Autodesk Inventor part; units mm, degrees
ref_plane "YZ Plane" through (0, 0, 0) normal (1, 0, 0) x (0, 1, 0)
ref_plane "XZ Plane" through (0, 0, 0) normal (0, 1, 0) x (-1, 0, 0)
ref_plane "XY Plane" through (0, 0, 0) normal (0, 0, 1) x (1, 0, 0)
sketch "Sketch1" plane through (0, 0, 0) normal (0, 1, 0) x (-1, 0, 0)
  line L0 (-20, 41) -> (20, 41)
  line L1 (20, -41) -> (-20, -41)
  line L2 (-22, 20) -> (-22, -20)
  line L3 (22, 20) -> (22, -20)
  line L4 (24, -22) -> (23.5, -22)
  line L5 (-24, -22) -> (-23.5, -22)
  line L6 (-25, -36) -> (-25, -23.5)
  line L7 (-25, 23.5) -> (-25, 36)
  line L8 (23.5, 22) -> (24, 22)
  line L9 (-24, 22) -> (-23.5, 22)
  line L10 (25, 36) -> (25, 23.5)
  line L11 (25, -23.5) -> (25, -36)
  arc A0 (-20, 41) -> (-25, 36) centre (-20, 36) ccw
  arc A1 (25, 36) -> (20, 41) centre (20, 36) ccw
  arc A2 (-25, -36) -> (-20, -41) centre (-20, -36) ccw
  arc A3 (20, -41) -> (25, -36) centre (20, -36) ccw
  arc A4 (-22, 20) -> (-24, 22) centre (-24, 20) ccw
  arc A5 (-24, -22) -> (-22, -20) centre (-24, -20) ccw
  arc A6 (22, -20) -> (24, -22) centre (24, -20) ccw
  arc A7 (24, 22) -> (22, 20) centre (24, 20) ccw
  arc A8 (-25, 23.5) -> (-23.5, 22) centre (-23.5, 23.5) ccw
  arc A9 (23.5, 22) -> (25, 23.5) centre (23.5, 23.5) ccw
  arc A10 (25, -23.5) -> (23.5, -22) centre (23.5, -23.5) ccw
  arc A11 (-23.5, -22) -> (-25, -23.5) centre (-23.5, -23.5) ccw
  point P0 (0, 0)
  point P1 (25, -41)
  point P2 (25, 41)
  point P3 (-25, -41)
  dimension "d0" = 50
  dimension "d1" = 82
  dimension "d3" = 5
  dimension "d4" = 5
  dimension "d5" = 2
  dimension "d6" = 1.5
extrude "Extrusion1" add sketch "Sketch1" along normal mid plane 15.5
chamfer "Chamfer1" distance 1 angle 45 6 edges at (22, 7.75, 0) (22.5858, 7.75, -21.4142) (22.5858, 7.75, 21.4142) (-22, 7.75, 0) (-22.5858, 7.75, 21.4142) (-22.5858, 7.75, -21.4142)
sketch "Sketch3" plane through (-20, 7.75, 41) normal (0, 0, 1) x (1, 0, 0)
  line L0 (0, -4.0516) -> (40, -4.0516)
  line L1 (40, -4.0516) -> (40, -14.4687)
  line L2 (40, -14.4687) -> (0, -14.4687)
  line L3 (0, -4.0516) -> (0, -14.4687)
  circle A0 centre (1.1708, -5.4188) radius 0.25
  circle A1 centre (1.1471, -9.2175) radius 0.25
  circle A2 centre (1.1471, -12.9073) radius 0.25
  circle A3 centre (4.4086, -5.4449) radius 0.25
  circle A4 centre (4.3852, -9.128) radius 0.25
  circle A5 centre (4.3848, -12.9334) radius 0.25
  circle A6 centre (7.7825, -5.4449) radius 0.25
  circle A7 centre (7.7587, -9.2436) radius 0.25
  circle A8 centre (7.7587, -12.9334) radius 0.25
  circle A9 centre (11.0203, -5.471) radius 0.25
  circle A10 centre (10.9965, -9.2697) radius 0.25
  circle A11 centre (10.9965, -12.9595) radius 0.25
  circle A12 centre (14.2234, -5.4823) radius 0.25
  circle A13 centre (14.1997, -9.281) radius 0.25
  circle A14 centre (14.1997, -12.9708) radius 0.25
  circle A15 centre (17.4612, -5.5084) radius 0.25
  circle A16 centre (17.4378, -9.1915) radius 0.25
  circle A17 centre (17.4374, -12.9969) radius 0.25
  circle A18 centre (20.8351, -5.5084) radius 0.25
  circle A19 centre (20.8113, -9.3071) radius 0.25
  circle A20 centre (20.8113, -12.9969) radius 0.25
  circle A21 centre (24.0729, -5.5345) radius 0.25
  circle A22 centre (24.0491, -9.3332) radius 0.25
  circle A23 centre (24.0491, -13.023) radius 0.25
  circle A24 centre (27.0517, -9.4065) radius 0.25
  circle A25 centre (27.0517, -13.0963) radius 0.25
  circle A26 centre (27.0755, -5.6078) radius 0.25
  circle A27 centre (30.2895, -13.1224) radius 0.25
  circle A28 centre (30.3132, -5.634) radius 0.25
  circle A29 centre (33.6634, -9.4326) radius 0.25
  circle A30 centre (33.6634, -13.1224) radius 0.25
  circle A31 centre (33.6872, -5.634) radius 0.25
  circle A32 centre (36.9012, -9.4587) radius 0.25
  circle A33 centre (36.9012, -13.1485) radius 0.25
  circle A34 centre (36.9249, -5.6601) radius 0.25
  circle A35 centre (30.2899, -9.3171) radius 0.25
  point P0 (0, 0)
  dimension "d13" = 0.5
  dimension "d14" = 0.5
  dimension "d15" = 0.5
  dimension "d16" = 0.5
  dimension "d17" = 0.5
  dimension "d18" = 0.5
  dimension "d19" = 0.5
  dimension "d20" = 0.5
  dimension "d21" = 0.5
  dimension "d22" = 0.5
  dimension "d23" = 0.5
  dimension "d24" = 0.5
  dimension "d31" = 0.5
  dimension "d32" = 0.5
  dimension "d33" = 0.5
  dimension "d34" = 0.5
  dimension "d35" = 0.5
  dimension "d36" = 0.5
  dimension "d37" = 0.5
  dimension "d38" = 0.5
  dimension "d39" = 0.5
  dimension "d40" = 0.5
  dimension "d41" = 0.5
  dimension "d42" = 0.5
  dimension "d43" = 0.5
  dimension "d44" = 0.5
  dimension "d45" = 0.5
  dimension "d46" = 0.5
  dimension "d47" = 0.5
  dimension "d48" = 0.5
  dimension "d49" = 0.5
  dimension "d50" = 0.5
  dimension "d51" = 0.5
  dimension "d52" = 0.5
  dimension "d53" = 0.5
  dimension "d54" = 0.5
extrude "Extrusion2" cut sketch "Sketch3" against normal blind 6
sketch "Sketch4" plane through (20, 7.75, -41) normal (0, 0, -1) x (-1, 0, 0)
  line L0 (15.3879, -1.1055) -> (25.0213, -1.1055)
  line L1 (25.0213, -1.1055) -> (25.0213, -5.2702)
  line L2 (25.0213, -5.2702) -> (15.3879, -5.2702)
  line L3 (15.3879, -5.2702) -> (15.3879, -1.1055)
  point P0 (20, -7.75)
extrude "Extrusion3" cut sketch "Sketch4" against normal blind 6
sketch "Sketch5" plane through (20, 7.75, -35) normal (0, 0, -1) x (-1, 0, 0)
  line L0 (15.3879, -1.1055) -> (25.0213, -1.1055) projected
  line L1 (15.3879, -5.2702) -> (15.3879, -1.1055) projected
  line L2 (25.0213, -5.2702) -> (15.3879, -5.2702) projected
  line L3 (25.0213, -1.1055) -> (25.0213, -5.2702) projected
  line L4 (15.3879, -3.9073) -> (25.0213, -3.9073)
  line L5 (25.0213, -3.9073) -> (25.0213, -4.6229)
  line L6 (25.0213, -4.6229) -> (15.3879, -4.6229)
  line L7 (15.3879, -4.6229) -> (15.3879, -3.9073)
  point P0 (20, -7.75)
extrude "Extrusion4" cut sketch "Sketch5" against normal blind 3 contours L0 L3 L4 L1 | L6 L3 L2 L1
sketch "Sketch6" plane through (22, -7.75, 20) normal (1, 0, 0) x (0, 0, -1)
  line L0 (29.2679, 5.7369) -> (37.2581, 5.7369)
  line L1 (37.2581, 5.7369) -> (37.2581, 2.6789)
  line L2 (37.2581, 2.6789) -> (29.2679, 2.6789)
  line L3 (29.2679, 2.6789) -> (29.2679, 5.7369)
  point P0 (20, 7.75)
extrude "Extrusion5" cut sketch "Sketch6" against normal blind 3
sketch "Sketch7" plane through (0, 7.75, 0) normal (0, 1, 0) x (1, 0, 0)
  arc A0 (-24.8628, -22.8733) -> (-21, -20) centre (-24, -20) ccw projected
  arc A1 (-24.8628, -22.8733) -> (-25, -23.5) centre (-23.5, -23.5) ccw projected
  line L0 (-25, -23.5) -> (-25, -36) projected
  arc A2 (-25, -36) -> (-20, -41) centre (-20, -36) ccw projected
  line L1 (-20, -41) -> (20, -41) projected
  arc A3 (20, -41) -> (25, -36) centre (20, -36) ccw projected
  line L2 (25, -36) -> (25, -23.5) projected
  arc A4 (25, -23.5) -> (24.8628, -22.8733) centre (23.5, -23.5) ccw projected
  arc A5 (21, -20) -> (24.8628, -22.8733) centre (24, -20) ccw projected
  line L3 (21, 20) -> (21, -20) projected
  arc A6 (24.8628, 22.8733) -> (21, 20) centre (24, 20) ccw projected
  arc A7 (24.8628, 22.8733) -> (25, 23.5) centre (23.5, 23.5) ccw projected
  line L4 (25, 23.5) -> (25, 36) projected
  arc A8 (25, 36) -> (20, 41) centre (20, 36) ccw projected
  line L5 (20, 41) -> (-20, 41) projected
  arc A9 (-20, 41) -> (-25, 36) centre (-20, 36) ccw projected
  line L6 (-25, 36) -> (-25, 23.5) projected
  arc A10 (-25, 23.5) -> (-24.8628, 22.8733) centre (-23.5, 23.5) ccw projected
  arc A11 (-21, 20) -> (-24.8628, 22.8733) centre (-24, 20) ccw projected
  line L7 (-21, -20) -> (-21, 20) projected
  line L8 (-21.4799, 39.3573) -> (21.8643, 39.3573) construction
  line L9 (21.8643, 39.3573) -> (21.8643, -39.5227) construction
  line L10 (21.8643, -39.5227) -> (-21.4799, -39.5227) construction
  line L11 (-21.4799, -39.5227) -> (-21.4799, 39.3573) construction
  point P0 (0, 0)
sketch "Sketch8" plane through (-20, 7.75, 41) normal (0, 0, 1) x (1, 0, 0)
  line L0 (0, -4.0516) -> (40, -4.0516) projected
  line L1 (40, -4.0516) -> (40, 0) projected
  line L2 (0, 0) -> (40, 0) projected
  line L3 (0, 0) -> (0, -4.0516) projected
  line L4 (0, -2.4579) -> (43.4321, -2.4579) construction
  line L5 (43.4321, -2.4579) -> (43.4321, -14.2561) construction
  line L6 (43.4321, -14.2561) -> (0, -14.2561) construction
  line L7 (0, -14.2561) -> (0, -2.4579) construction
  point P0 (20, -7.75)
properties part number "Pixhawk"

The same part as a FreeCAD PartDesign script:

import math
import FreeCAD as App
import Part
import Sketcher


def edges_at(feature, points):
    """Names of the edges that pass closest to the given points."""
    edges = feature.Shape.Edges
    near = lambda p: min(range(len(edges)), key=lambda i: edges[i].distToShape(Part.Vertex(*p))[0])
    return sorted({f"Edge{near(p) + 1}" for p in points})

doc = App.newDocument("Part")
body = doc.addObject("PartDesign::Body", "Body")

sketch1 = body.newObject("Sketcher::SketchObject", "Sketch")
sketch1.AttachmentSupport = (doc.getObject("XZ_Plane"), [""])
sketch1.MapMode = "FlatFace"
sketch1.addGeometry([
    Part.LineSegment(App.Vector(-20, 41, 0), App.Vector(20, 41, 0)),
    Part.ArcOfCircle(Part.Circle(App.Vector(20, 36, 0), App.Vector(0, 0, 1), 5), math.radians(0), math.radians(90)),
    Part.LineSegment(App.Vector(25, 36, 0), App.Vector(25, 23.5, 0)),
    Part.ArcOfCircle(Part.Circle(App.Vector(23.5, 23.5, 0), App.Vector(0, 0, 1), 1.5), math.radians(-90), math.radians(0)),
    Part.LineSegment(App.Vector(23.5, 22, 0), App.Vector(24, 22, 0)),
    Part.ArcOfCircle(Part.Circle(App.Vector(24, 20, 0), App.Vector(0, 0, 1), 2), math.radians(90), math.radians(180)),
    Part.LineSegment(App.Vector(22, 20, 0), App.Vector(22, -20, 0)),
    Part.ArcOfCircle(Part.Circle(App.Vector(24, -20, 0), App.Vector(0, 0, 1), 2), math.radians(180), math.radians(270)),
    Part.LineSegment(App.Vector(24, -22, 0), App.Vector(23.5, -22, 0)),
    Part.ArcOfCircle(Part.Circle(App.Vector(23.5, -23.5, 0), App.Vector(0, 0, 1), 1.5), math.radians(0), math.radians(90)),
    Part.LineSegment(App.Vector(25, -23.5, 0), App.Vector(25, -36, 0)),
    Part.ArcOfCircle(Part.Circle(App.Vector(20, -36, 0), App.Vector(0, 0, 1), 5), math.radians(-90), math.radians(0)),
    Part.LineSegment(App.Vector(20, -41, 0), App.Vector(-20, -41, 0)),
    Part.ArcOfCircle(Part.Circle(App.Vector(-20, -36, 0), App.Vector(0, 0, 1), 5), math.radians(180), math.radians(270)),
    Part.LineSegment(App.Vector(-25, -36, 0), App.Vector(-25, -23.5, 0)),
    Part.ArcOfCircle(Part.Circle(App.Vector(-23.5, -23.5, 0), App.Vector(0, 0, 1), 1.5), math.radians(90), math.radians(180)),
    Part.LineSegment(App.Vector(-23.5, -22, 0), App.Vector(-24, -22, 0)),
    Part.ArcOfCircle(Part.Circle(App.Vector(-24, -20, 0), App.Vector(0, 0, 1), 2), math.radians(-90), math.radians(0)),
    Part.LineSegment(App.Vector(-22, -20, 0), App.Vector(-22, 20, 0)),
    Part.ArcOfCircle(Part.Circle(App.Vector(-24, 20, 0), App.Vector(0, 0, 1), 2), math.radians(0), math.radians(90)),
    Part.LineSegment(App.Vector(-24, 22, 0), App.Vector(-23.5, 22, 0)),
    Part.ArcOfCircle(Part.Circle(App.Vector(-23.5, 23.5, 0), App.Vector(0, 0, 1), 1.5), math.radians(180), math.radians(270)),
    Part.LineSegment(App.Vector(-25, 23.5, 0), App.Vector(-25, 36, 0)),
    Part.ArcOfCircle(Part.Circle(App.Vector(-20, 36, 0), App.Vector(0, 0, 1), 5), math.radians(90), math.radians(180)),
], False)
sketch1.addConstraint([
    Sketcher.Constraint("Tangent", 0, 2, 1, 2),
    Sketcher.Constraint("Tangent", 1, 1, 2, 1),
    Sketcher.Constraint("Tangent", 2, 2, 3, 2),
    Sketcher.Constraint("Tangent", 3, 1, 4, 1),
    Sketcher.Constraint("Tangent", 4, 2, 5, 1),
    Sketcher.Constraint("Tangent", 5, 2, 6, 1),
    Sketcher.Constraint("Tangent", 6, 2, 7, 1),
    Sketcher.Constraint("Tangent", 7, 2, 8, 1),
    Sketcher.Constraint("Tangent", 8, 2, 9, 2),
    Sketcher.Constraint("Tangent", 9, 1, 10, 1),
    Sketcher.Constraint("Tangent", 10, 2, 11, 2),
    Sketcher.Constraint("Tangent", 11, 1, 12, 1),
    Sketcher.Constraint("Tangent", 12, 2, 13, 2),
    Sketcher.Constraint("Tangent", 13, 1, 14, 1),
    Sketcher.Constraint("Tangent", 14, 2, 15, 2),
    Sketcher.Constraint("Tangent", 15, 1, 16, 1),
    Sketcher.Constraint("Tangent", 16, 2, 17, 1),
    Sketcher.Constraint("Tangent", 17, 2, 18, 1),
    Sketcher.Constraint("Tangent", 18, 2, 19, 1),
    Sketcher.Constraint("Tangent", 19, 2, 20, 1),
    Sketcher.Constraint("Tangent", 20, 2, 21, 2),
    Sketcher.Constraint("Tangent", 21, 1, 22, 1),
    Sketcher.Constraint("Tangent", 22, 2, 23, 2),
    Sketcher.Constraint("Tangent", 23, 1, 0, 1),
    Sketcher.Constraint("Horizontal", 0),
    Sketcher.Constraint("Vertical", 2),
    Sketcher.Constraint("Horizontal", 4),
    Sketcher.Constraint("Vertical", 6),
    Sketcher.Constraint("Horizontal", 8),
    Sketcher.Constraint("Vertical", 10),
    Sketcher.Constraint("Horizontal", 12),
    Sketcher.Constraint("Vertical", 14),
    Sketcher.Constraint("Horizontal", 16),
    Sketcher.Constraint("Vertical", 18),
    Sketcher.Constraint("Horizontal", 20),
    Sketcher.Constraint("Vertical", 22),
    Sketcher.Constraint("Equal", 5, 7),
    Sketcher.Constraint("Equal", 3, 9),
    Sketcher.Constraint("Equal", 1, 11),
    Sketcher.Constraint("Equal", 11, 13),
    Sketcher.Constraint("Equal", 9, 15),
    Sketcher.Constraint("Equal", 7, 17),
    Sketcher.Constraint("Equal", 17, 19),
    Sketcher.Constraint("Equal", 15, 21),
    Sketcher.Constraint("Equal", 13, 23),
    Sketcher.Constraint("Symmetric", 1, 3, 13, 3, -1, 1),
    Sketcher.Constraint("Symmetric", 5, 3, 17, 3, -1, 1),
    Sketcher.Constraint("Symmetric", 9, 3, 21, 3, -1, 1),
    Sketcher.Constraint("Symmetric", 9, 3, 15, 3, -2),
    Sketcher.Constraint("Equal", 12, 6),
    Sketcher.Constraint("Radius", 1, 5.0),
    Sketcher.Constraint("Radius", 5, 2.0),
    Sketcher.Constraint("Radius", 3, 1.5),
    Sketcher.Constraint("DistanceX", 11, 3, 6, 2, 2.0),
    Sketcher.Constraint("DistanceX", 0, 1, 0, 2, 40.0),
    Sketcher.Constraint("DistanceY", 2, 2, 2, 1, 12.5),
])
pad1 = body.newObject("PartDesign::Pad", "Pad")
pad1.Profile = sketch1
pad1.Length = 15.5
pad1.Midplane = True
doc.recompute()

chamfer = body.newObject("PartDesign::Chamfer", "Chamfer")
chamfer.Base = (pad1, edges_at(pad1, [
    (22, 7.75, 0),
    (22.586, 7.75, -21.414),
    (22.586, 7.75, 21.414),
    (-22, 7.75, 0),
    (-22.586, 7.75, 21.414),
    (-22.586, 7.75, -21.414),
]))
chamfer.Size = 1

sketch2 = body.newObject("Sketcher::SketchObject", "Sketch001")
sketch2.AttachmentSupport = (doc.getObject("XY_Plane"), [""])
sketch2.MapMode = "FlatFace"
sketch2.AttachmentOffset = App.Placement(App.Vector(0, 0, 41), App.Rotation())
sketch2.addGeometry([
    Part.LineSegment(App.Vector(20, 3.7, 0), App.Vector(-20, 3.7, 0)),
    Part.LineSegment(App.Vector(-20, 3.7, 0), App.Vector(-20, -6.72, 0)),
    Part.LineSegment(App.Vector(-20, -6.72, 0), App.Vector(20, -6.72, 0)),
    Part.LineSegment(App.Vector(20, -6.72, 0), App.Vector(20, 3.7, 0)),
    Part.Circle(App.Vector(-18.85, -5.16, 0), App.Vector(0, 0, 1), 0.25),
    Part.Circle(App.Vector(-15.62, -5.18, 0), App.Vector(0, 0, 1), 0.25),
    Part.Circle(App.Vector(-12.24, -5.18, 0), App.Vector(0, 0, 1), 0.25),
    Part.Circle(App.Vector(-9, -5.21, 0), App.Vector(0, 0, 1), 0.25),
    Part.Circle(App.Vector(-5.8, -5.22, 0), App.Vector(0, 0, 1), 0.25),
    Part.Circle(App.Vector(-2.56, -5.25, 0), App.Vector(0, 0, 1), 0.25),
    Part.Circle(App.Vector(-9, -1.52, 0), App.Vector(0, 0, 1), 0.25),
    Part.Circle(App.Vector(-5.8, -1.53, 0), App.Vector(0, 0, 1), 0.25),
    Part.Circle(App.Vector(0.81, -5.25, 0), App.Vector(0, 0, 1), 0.25),
    Part.Circle(App.Vector(4.05, -5.27, 0), App.Vector(0, 0, 1), 0.25),
    Part.Circle(App.Vector(7.05, -5.35, 0), App.Vector(0, 0, 1), 0.25),
    Part.Circle(App.Vector(10.29, -5.37, 0), App.Vector(0, 0, 1), 0.25),
    Part.Circle(App.Vector(13.66, -5.37, 0), App.Vector(0, 0, 1), 0.25),
    Part.Circle(App.Vector(16.9, -5.4, 0), App.Vector(0, 0, 1), 0.25),
    Part.Circle(App.Vector(0.81, -1.56, 0), App.Vector(0, 0, 1), 0.25),
    Part.Circle(App.Vector(4.05, -1.58, 0), App.Vector(0, 0, 1), 0.25),
    Part.Circle(App.Vector(7.05, -1.66, 0), App.Vector(0, 0, 1), 0.25),
    Part.Circle(App.Vector(10.29, -1.57, 0), App.Vector(0, 0, 1), 0.25),
    Part.Circle(App.Vector(13.66, -1.68, 0), App.Vector(0, 0, 1), 0.25),
    Part.Circle(App.Vector(16.9, -1.71, 0), App.Vector(0, 0, 1), 0.25),
    Part.Circle(App.Vector(-18.85, -1.47, 0), App.Vector(0, 0, 1), 0.25),
    Part.Circle(App.Vector(-15.61, -1.38, 0), App.Vector(0, 0, 1), 0.25),
    Part.Circle(App.Vector(-12.24, -1.49, 0), App.Vector(0, 0, 1), 0.25),
    Part.Circle(App.Vector(-2.56, -1.44, 0), App.Vector(0, 0, 1), 0.25),
    Part.Circle(App.Vector(-18.83, 2.33, 0), App.Vector(0, 0, 1), 0.25),
    Part.Circle(App.Vector(-15.59, 2.31, 0), App.Vector(0, 0, 1), 0.25),
    Part.Circle(App.Vector(-12.22, 2.31, 0), App.Vector(0, 0, 1), 0.25),
    Part.Circle(App.Vector(-8.98, 2.28, 0), App.Vector(0, 0, 1), 0.25),
    Part.Circle(App.Vector(-5.78, 2.27, 0), App.Vector(0, 0, 1), 0.25),
    Part.Circle(App.Vector(-2.54, 2.24, 0), App.Vector(0, 0, 1), 0.25),
    Part.Circle(App.Vector(0.84, 2.24, 0), App.Vector(0, 0, 1), 0.25),
    Part.Circle(App.Vector(4.07, 2.22, 0), App.Vector(0, 0, 1), 0.25),
    Part.Circle(App.Vector(7.08, 2.14, 0), App.Vector(0, 0, 1), 0.25),
    Part.Circle(App.Vector(10.31, 2.12, 0), App.Vector(0, 0, 1), 0.25),
    Part.Circle(App.Vector(13.69, 2.12, 0), App.Vector(0, 0, 1), 0.25),
    Part.Circle(App.Vector(16.92, 2.09, 0), App.Vector(0, 0, 1), 0.25),
], False)
sketch2.addConstraint([
    Sketcher.Constraint("Coincident", 0, 2, 1, 1),
    Sketcher.Constraint("Coincident", 1, 2, 2, 1),
    Sketcher.Constraint("Coincident", 2, 2, 3, 1),
    Sketcher.Constraint("Coincident", 3, 2, 0, 1),
    Sketcher.Constraint("Horizontal", 0),
    Sketcher.Constraint("Vertical", 1),
    Sketcher.Constraint("Horizontal", 2),
    Sketcher.Constraint("Vertical", 3),
    Sketcher.Constraint("Equal", 4, 5),
    Sketcher.Constraint("Equal", 5, 6),
    Sketcher.Constraint("Equal", 6, 7),
    Sketcher.Constraint("Equal", 7, 8),
    Sketcher.Constraint("Equal", 8, 9),
    Sketcher.Constraint("Equal", 9, 10),
    Sketcher.Constraint("Equal", 10, 11),
    Sketcher.Constraint("Equal", 11, 12),
    Sketcher.Constraint("Equal", 12, 13),
    Sketcher.Constraint("Equal", 13, 14),
    Sketcher.Constraint("Equal", 14, 15),
    Sketcher.Constraint("Equal", 15, 16),
    Sketcher.Constraint("Equal", 16, 17),
    Sketcher.Constraint("Equal", 17, 18),
    Sketcher.Constraint("Equal", 18, 19),
    Sketcher.Constraint("Equal", 19, 20),
    Sketcher.Constraint("Equal", 20, 21),
    Sketcher.Constraint("Equal", 21, 22),
    Sketcher.Constraint("Equal", 22, 23),
    Sketcher.Constraint("Equal", 23, 24),
    Sketcher.Constraint("Equal", 24, 25),
    Sketcher.Constraint("Equal", 25, 26),
    Sketcher.Constraint("Equal", 26, 27),
    Sketcher.Constraint("Equal", 27, 28),
    Sketcher.Constraint("Equal", 28, 29),
    Sketcher.Constraint("Equal", 29, 30),
    Sketcher.Constraint("Equal", 30, 31),
    Sketcher.Constraint("Equal", 31, 32),
    Sketcher.Constraint("Equal", 32, 33),
    Sketcher.Constraint("Equal", 33, 34),
    Sketcher.Constraint("Equal", 34, 35),
    Sketcher.Constraint("Equal", 35, 36),
    Sketcher.Constraint("Equal", 36, 37),
    Sketcher.Constraint("Equal", 37, 38),
    Sketcher.Constraint("Equal", 38, 39),
    Sketcher.Constraint("Horizontal", 5, 3, 6, 3),
    Sketcher.Constraint("Horizontal", 9, 3, 12, 3),
    Sketcher.Constraint("Horizontal", 15, 3, 16, 3),
    Sketcher.Constraint("Horizontal", 29, 3, 30, 3),
    Sketcher.Constraint("Horizontal", 33, 3, 34, 3),
    Sketcher.Constraint("Horizontal", 37, 3, 38, 3),
    Sketcher.Constraint("Vertical", 7, 3, 10, 3),
    Sketcher.Constraint("Vertical", 8, 3, 11, 3),
    Sketcher.Constraint("Vertical", 12, 3, 18, 3),
    Sketcher.Constraint("Vertical", 13, 3, 19, 3),
    Sketcher.Constraint("Vertical", 14, 3, 20, 3),
    Sketcher.Constraint("Vertical", 16, 3, 22, 3),
    Sketcher.Constraint("Vertical", 17, 3, 23, 3),
    Sketcher.Constraint("Vertical", 4, 3, 24, 3),
    Sketcher.Constraint("Vertical", 6, 3, 26, 3),
    Sketcher.Constraint("Diameter", 4, 0.5),
    Sketcher.Constraint("DistanceX", 0, 2, 0, 1, 40.0),
    Sketcher.Constraint("DistanceX", 0, 2, -1, 1, 20.0),
    Sketcher.Constraint("DistanceY", 1, 2, 1, 1, 10.417),
    Sketcher.Constraint("DistanceX", -1, 1, 21, 3, 10.29),
    Sketcher.Constraint("DistanceY", -1, 1, 39, 3, 2.09),
    Sketcher.Constraint("DistanceX", 12, 3, 17, 3, 16.09),
    Sketcher.Constraint("DistanceX", 29, 3, 26, 3, 3.35),
    Sketcher.Constraint("DistanceY", 11, 3, 31, 3, 3.81),
    Sketcher.Constraint("DistanceX", 33, 3, 18, 3, 3.35),
    Sketcher.Constraint("DistanceY", 2, 2, 23, 3, 5.01),
    Sketcher.Constraint("DistanceX", 4, 3, -1, 1, 18.853),
    Sketcher.Constraint("DistanceY", 9, 3, -1, 1, 5.247),
    Sketcher.Constraint("DistanceY", 11, 3, -1, 1, 1.531),
    Sketcher.Constraint("DistanceX", -1, 1, 13, 3, 4.049),
    Sketcher.Constraint("DistanceY", 13, 3, -1, 1, 5.273),
    Sketcher.Constraint("DistanceY", 18, 3, -1, 1, 1.557),
    Sketcher.Constraint("DistanceY", 21, 3, -1, 1, 1.567),
    Sketcher.Constraint("DistanceY", 25, 3, -1, 1, 1.378),
    Sketcher.Constraint("DistanceY", -1, 1, 29, 3, 2.305),
    Sketcher.Constraint("DistanceX", -1, 1, 34, 3, 0.835),
    Sketcher.Constraint("DistanceX", -1, 1, 35, 3, 4.073),
    Sketcher.Constraint("DistanceY", -1, 1, 37, 3, 2.116),
    Sketcher.Constraint("DistanceX", -1, 1, 39, 3, 16.925),
    Sketcher.Constraint("DistanceY", 5, 3, 4, 3, 0.026),
    Sketcher.Constraint("DistanceX", 5, 3, 6, 3, 3.374),
    Sketcher.Constraint("DistanceY", 7, 3, 6, 3, 0.026),
    Sketcher.Constraint("DistanceX", 6, 3, 8, 3, 6.441),
    Sketcher.Constraint("DistanceY", 9, 3, 8, 3, 0.026),
    Sketcher.Constraint("DistanceX", 7, 3, 9, 3, 6.441),
    Sketcher.Constraint("DistanceY", 8, 3, 10, 3, 3.701),
    Sketcher.Constraint("DistanceX", 9, 3, 12, 3, 3.374),
    Sketcher.Constraint("DistanceX", 8, 3, 14, 3, 12.852),
    Sketcher.Constraint("DistanceY", 15, 3, 14, 3, 0.026),
    Sketcher.Constraint("DistanceX", 9, 3, 15, 3, 12.852),
    Sketcher.Constraint("DistanceX", 15, 3, 16, 3, 3.374),
    Sketcher.Constraint("DistanceY", 17, 3, 16, 3, 0.026),
    Sketcher.Constraint("DistanceX", 13, 3, 17, 3, 12.852),
    Sketcher.Constraint("DistanceY", 19, 3, 18, 3, 0.026),
    Sketcher.Constraint("DistanceY", 14, 3, 19, 3, 3.763),
    Sketcher.Constraint("DistanceY", 15, 3, 20, 3, 3.716),
    Sketcher.Constraint("DistanceY", 17, 3, 22, 3, 3.716),
    Sketcher.Constraint("DistanceY", 23, 3, 22, 3, 0.026),
    Sketcher.Constraint("DistanceY", 5, 3, 24, 3, 3.716),
    Sketcher.Constraint("DistanceX", 24, 3, 25, 3, 3.238),
    Sketcher.Constraint("DistanceY", 10, 3, 26, 3, 0.026),
    Sketcher.Constraint("DistanceY", 7, 3, 26, 3, 3.716),
    Sketcher.Constraint("DistanceX", 11, 3, 27, 3, 3.238),
    Sketcher.Constraint("DistanceX", 28, 3, 26, 3, 6.588),
    Sketcher.Constraint("DistanceY", 29, 3, 28, 3, 0.026),
    Sketcher.Constraint("DistanceX", 29, 3, 30, 3, 3.374),
    Sketcher.Constraint("DistanceX", 30, 3, 10, 3, 3.214),
    Sketcher.Constraint("DistanceX", 31, 3, 32, 3, 3.203),
    Sketcher.Constraint("DistanceX", 10, 3, 32, 3, 3.227),
    Sketcher.Constraint("DistanceY", 33, 3, 32, 3, 0.026),
    Sketcher.Constraint("DistanceY", 27, 3, 33, 3, 3.683),
    Sketcher.Constraint("DistanceY", 35, 3, 34, 3, 0.026),
    Sketcher.Constraint("DistanceY", 20, 3, 35, 3, 3.872),
    Sketcher.Constraint("DistanceX", 37, 3, 38, 3, 3.374),
    Sketcher.Constraint("DistanceX", 38, 3, 23, 3, 3.214),
    Sketcher.Constraint("DistanceX", -1, 1, 36, 3, 7.0755),
    Sketcher.Constraint("DistanceY", -1, 1, 36, 3, 2.1422),
])
pocket1 = body.newObject("PartDesign::Pocket", "Pocket")
pocket1.Profile = sketch2
pocket1.Length = 6

sketch3 = body.newObject("Sketcher::SketchObject", "Sketch002")
sketch3.AttachmentSupport = (doc.getObject("XY_Plane"), [""])
sketch3.MapMode = "FlatFace"
sketch3.AttachmentOffset = App.Placement(App.Vector(0, 0, -41), App.Rotation())
sketch3.addGeometry([
    Part.LineSegment(App.Vector(-5, 6.6, 0), App.Vector(4.6, 6.6, 0)),
    Part.LineSegment(App.Vector(4.6, 6.6, 0), App.Vector(4.6, 2.5, 0)),
    Part.LineSegment(App.Vector(4.6, 2.5, 0), App.Vector(-5, 2.5, 0)),
    Part.LineSegment(App.Vector(-5, 2.5, 0), App.Vector(-5, 6.6, 0)),
], False)
sketch3.addConstraint([
    Sketcher.Constraint("Coincident", 0, 2, 1, 1),
    Sketcher.Constraint("Coincident", 1, 2, 2, 1),
    Sketcher.Constraint("Coincident", 2, 2, 3, 1),
    Sketcher.Constraint("Coincident", 3, 2, 0, 1),
    Sketcher.Constraint("Horizontal", 0),
    Sketcher.Constraint("Vertical", 1),
    Sketcher.Constraint("Horizontal", 2),
    Sketcher.Constraint("Vertical", 3),
    Sketcher.Constraint("DistanceX", 0, 1, 0, 2, 9.6334),
    Sketcher.Constraint("DistanceY", 1, 2, 1, 1, 4.1647),
    Sketcher.Constraint("DistanceX", -1, 1, 0, 2, 4.612),
    Sketcher.Constraint("DistanceY", -1, 1, 0, 2, 6.6445),
])
pocket2 = body.newObject("PartDesign::Pocket", "Pocket001")
pocket2.Profile = sketch3
pocket2.Length = 6
pocket2.Reversed = True

sketch4 = body.newObject("Sketcher::SketchObject", "Sketch003")
sketch4.AttachmentSupport = (doc.getObject("XY_Plane"), [""])
sketch4.MapMode = "FlatFace"
sketch4.AttachmentOffset = App.Placement(App.Vector(0, 0, -35), App.Rotation())
sketch4.addGeometry([
    Part.LineSegment(App.Vector(-5, 6.6, 0), App.Vector(4.6, 6.6, 0)),
    Part.LineSegment(App.Vector(4.6, 6.6, 0), App.Vector(4.6, 3.8, 0)),
    Part.LineSegment(App.Vector(4.6, 3.8, 0), App.Vector(-5, 3.8, 0)),
    Part.LineSegment(App.Vector(-5, 3.8, 0), App.Vector(-5, 6.6, 0)),
    Part.LineSegment(App.Vector(-5, 3.1, 0), App.Vector(4.6, 3.1, 0)),
    Part.LineSegment(App.Vector(4.6, 3.1, 0), App.Vector(4.6, 2.5, 0)),
    Part.LineSegment(App.Vector(4.6, 2.5, 0), App.Vector(-5, 2.5, 0)),
    Part.LineSegment(App.Vector(-5, 2.5, 0), App.Vector(-5, 3.1, 0)),
], False)
sketch4.addConstraint([
    Sketcher.Constraint("Coincident", 0, 2, 1, 1),
    Sketcher.Constraint("Coincident", 1, 2, 2, 1),
    Sketcher.Constraint("Coincident", 2, 2, 3, 1),
    Sketcher.Constraint("Coincident", 3, 2, 0, 1),
    Sketcher.Constraint("Coincident", 4, 2, 5, 1),
    Sketcher.Constraint("Coincident", 5, 2, 6, 1),
    Sketcher.Constraint("Coincident", 6, 2, 7, 1),
    Sketcher.Constraint("Coincident", 7, 2, 4, 1),
    Sketcher.Constraint("Horizontal", 0),
    Sketcher.Constraint("Vertical", 1),
    Sketcher.Constraint("Horizontal", 2),
    Sketcher.Constraint("Vertical", 3),
    Sketcher.Constraint("Horizontal", 4),
    Sketcher.Constraint("Vertical", 5),
    Sketcher.Constraint("Horizontal", 6),
    Sketcher.Constraint("Vertical", 7),
    Sketcher.Constraint("Vertical", 1, 2, 4, 2),
    Sketcher.Constraint("Vertical", 3, 2, 6, 2),
    Sketcher.Constraint("DistanceX", 0, 1, 0, 2, 9.6334),
    Sketcher.Constraint("DistanceY", 1, 2, 1, 1, 2.8018),
    Sketcher.Constraint("DistanceY", 5, 2, 5, 1, 0.6473),
    Sketcher.Constraint("DistanceX", -1, 1, 0, 2, 4.612),
    Sketcher.Constraint("DistanceY", -1, 1, 4, 2, 3.127),
    Sketcher.Constraint("DistanceY", 5, 2, 1, 2, 1.363),
])
pocket3 = body.newObject("PartDesign::Pocket", "Pocket002")
pocket3.Profile = sketch4
pocket3.Length = 3
pocket3.Reversed = True

sketch5 = body.newObject("Sketcher::SketchObject", "Sketch004")
sketch5.AttachmentSupport = (doc.getObject("YZ_Plane"), [""])
sketch5.MapMode = "FlatFace"
sketch5.AttachmentOffset = App.Placement(App.Vector(0, 0, 22), App.Rotation())
sketch5.addGeometry([
    Part.LineSegment(App.Vector(-2, -17.3, 0), App.Vector(-2, -9.3, 0)),
    Part.LineSegment(App.Vector(-2, -9.3, 0), App.Vector(-5.1, -9.3, 0)),
    Part.LineSegment(App.Vector(-5.1, -9.3, 0), App.Vector(-5.1, -17.3, 0)),
    Part.LineSegment(App.Vector(-5.1, -17.3, 0), App.Vector(-2, -17.3, 0)),
], False)
sketch5.addConstraint([
    Sketcher.Constraint("Coincident", 0, 2, 1, 1),
    Sketcher.Constraint("Coincident", 1, 2, 2, 1),
    Sketcher.Constraint("Coincident", 2, 2, 3, 1),
    Sketcher.Constraint("Coincident", 3, 2, 0, 1),
    Sketcher.Constraint("Vertical", 0),
    Sketcher.Constraint("Horizontal", 1),
    Sketcher.Constraint("Vertical", 2),
    Sketcher.Constraint("Horizontal", 3),
    Sketcher.Constraint("DistanceX", 1, 2, 1, 1, 3.058),
    Sketcher.Constraint("DistanceY", 0, 1, 0, 2, 7.9902),
    Sketcher.Constraint("DistanceX", 0, 2, -1, 1, 2.013),
    Sketcher.Constraint("DistanceY", 0, 2, -1, 1, 9.268),
])
pocket4 = body.newObject("PartDesign::Pocket", "Pocket003")
pocket4.Profile = sketch5
pocket4.Length = 3

doc.recompute()
